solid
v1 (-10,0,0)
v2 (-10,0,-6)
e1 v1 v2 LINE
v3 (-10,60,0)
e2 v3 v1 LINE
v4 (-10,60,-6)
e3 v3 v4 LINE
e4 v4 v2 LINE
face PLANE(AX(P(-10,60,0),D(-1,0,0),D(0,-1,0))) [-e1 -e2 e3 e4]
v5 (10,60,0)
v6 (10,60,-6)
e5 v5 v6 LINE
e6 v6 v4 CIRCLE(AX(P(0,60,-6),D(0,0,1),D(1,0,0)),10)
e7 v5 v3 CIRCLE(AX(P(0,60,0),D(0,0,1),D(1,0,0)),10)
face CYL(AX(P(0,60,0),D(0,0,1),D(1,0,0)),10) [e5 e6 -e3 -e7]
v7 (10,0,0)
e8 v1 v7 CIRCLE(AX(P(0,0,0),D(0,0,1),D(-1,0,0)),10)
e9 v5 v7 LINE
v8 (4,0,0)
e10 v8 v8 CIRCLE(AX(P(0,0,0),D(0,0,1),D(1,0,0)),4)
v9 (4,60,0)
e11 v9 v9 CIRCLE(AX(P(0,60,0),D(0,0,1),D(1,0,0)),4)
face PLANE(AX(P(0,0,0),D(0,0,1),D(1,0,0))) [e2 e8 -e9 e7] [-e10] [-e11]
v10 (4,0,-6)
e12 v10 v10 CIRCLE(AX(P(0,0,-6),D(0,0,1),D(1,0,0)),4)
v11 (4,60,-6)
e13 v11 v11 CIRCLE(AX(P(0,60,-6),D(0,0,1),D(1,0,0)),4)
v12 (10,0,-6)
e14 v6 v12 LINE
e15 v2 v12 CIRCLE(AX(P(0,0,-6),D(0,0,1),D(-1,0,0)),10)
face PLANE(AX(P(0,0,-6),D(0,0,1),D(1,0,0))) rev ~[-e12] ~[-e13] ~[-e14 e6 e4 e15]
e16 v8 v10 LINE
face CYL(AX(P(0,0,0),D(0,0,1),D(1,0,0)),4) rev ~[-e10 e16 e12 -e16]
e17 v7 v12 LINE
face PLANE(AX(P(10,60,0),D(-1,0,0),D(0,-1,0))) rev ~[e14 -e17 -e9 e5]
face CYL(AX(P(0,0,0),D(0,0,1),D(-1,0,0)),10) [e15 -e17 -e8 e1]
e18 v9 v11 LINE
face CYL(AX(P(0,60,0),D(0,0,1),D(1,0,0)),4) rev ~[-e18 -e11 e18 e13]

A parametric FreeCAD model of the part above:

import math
import FreeCAD as App
import Part
import Sketcher

doc = App.newDocument("Part")
body = doc.addObject("PartDesign::Body", "Body")

# Sketch on XY plane
sketch1 = doc.addObject("Sketcher::SketchObject", "Sketch")
body.addObject(sketch1)
sketch1.AttachmentSupport = (doc.XY_Plane, [""])
sketch1.MapMode = "FlatFace"
sketch1.addGeometry(Part.LineSegment(App.Vector(-10, 60, 0), App.Vector(-10, 0, 0)), False)
sketch1.addGeometry(Part.ArcOfCircle(Part.Circle(App.Vector(0, 0, 0), App.Vector(0, 0, 1), 10), math.radians(180), math.radians(360)), False)
sketch1.addGeometry(Part.LineSegment(App.Vector(10, 0, 0), App.Vector(10, 60, 0)), False)
sketch1.addGeometry(Part.ArcOfCircle(Part.Circle(App.Vector(0, 60, 0), App.Vector(0, 0, 1), 10), math.radians(0), math.radians(180)), False)
sketch1.addGeometry(Part.Circle(App.Vector(0, 0, 0), App.Vector(0, 0, 1), 4), False)
sketch1.addGeometry(Part.Circle(App.Vector(0, 60, 0), App.Vector(0, 0, 1), 4), False)
sketch1.addConstraint(Sketcher.Constraint("Tangent", 0, 2, 1, 1))
sketch1.addConstraint(Sketcher.Constraint("Tangent", 1, 2, 2, 1))
sketch1.addConstraint(Sketcher.Constraint("Tangent", 2, 2, 3, 1))
sketch1.addConstraint(Sketcher.Constraint("Tangent", 3, 2, 0, 1))
sketch1.addConstraint(Sketcher.Constraint("Vertical", 0))
sketch1.addConstraint(Sketcher.Constraint("Vertical", 2))
sketch1.addConstraint(Sketcher.Constraint("Coincident", 1, 3, -1, 1))
sketch1.addConstraint(Sketcher.Constraint("Coincident", 4, 3, -1, 1))
sketch1.addConstraint(Sketcher.Constraint("Coincident", 5, 3, 3, 3))
sketch1.addConstraint(Sketcher.Constraint("Equal", 4, 5))
sketch1.addConstraint(Sketcher.Constraint("Diameter", 4, 8.0))
sketch1.addConstraint(Sketcher.Constraint("Radius", 1, 10.0))
sketch1.addConstraint(Sketcher.Constraint("DistanceY", 0, 2, 0, 1, 60.0))
pad1 = doc.addObject("PartDesign::Pad", "Pad")
body.addObject(pad1)
pad1.Profile = sketch1
pad1.Length = 6
pad1.Reversed = True

doc.recompute()
